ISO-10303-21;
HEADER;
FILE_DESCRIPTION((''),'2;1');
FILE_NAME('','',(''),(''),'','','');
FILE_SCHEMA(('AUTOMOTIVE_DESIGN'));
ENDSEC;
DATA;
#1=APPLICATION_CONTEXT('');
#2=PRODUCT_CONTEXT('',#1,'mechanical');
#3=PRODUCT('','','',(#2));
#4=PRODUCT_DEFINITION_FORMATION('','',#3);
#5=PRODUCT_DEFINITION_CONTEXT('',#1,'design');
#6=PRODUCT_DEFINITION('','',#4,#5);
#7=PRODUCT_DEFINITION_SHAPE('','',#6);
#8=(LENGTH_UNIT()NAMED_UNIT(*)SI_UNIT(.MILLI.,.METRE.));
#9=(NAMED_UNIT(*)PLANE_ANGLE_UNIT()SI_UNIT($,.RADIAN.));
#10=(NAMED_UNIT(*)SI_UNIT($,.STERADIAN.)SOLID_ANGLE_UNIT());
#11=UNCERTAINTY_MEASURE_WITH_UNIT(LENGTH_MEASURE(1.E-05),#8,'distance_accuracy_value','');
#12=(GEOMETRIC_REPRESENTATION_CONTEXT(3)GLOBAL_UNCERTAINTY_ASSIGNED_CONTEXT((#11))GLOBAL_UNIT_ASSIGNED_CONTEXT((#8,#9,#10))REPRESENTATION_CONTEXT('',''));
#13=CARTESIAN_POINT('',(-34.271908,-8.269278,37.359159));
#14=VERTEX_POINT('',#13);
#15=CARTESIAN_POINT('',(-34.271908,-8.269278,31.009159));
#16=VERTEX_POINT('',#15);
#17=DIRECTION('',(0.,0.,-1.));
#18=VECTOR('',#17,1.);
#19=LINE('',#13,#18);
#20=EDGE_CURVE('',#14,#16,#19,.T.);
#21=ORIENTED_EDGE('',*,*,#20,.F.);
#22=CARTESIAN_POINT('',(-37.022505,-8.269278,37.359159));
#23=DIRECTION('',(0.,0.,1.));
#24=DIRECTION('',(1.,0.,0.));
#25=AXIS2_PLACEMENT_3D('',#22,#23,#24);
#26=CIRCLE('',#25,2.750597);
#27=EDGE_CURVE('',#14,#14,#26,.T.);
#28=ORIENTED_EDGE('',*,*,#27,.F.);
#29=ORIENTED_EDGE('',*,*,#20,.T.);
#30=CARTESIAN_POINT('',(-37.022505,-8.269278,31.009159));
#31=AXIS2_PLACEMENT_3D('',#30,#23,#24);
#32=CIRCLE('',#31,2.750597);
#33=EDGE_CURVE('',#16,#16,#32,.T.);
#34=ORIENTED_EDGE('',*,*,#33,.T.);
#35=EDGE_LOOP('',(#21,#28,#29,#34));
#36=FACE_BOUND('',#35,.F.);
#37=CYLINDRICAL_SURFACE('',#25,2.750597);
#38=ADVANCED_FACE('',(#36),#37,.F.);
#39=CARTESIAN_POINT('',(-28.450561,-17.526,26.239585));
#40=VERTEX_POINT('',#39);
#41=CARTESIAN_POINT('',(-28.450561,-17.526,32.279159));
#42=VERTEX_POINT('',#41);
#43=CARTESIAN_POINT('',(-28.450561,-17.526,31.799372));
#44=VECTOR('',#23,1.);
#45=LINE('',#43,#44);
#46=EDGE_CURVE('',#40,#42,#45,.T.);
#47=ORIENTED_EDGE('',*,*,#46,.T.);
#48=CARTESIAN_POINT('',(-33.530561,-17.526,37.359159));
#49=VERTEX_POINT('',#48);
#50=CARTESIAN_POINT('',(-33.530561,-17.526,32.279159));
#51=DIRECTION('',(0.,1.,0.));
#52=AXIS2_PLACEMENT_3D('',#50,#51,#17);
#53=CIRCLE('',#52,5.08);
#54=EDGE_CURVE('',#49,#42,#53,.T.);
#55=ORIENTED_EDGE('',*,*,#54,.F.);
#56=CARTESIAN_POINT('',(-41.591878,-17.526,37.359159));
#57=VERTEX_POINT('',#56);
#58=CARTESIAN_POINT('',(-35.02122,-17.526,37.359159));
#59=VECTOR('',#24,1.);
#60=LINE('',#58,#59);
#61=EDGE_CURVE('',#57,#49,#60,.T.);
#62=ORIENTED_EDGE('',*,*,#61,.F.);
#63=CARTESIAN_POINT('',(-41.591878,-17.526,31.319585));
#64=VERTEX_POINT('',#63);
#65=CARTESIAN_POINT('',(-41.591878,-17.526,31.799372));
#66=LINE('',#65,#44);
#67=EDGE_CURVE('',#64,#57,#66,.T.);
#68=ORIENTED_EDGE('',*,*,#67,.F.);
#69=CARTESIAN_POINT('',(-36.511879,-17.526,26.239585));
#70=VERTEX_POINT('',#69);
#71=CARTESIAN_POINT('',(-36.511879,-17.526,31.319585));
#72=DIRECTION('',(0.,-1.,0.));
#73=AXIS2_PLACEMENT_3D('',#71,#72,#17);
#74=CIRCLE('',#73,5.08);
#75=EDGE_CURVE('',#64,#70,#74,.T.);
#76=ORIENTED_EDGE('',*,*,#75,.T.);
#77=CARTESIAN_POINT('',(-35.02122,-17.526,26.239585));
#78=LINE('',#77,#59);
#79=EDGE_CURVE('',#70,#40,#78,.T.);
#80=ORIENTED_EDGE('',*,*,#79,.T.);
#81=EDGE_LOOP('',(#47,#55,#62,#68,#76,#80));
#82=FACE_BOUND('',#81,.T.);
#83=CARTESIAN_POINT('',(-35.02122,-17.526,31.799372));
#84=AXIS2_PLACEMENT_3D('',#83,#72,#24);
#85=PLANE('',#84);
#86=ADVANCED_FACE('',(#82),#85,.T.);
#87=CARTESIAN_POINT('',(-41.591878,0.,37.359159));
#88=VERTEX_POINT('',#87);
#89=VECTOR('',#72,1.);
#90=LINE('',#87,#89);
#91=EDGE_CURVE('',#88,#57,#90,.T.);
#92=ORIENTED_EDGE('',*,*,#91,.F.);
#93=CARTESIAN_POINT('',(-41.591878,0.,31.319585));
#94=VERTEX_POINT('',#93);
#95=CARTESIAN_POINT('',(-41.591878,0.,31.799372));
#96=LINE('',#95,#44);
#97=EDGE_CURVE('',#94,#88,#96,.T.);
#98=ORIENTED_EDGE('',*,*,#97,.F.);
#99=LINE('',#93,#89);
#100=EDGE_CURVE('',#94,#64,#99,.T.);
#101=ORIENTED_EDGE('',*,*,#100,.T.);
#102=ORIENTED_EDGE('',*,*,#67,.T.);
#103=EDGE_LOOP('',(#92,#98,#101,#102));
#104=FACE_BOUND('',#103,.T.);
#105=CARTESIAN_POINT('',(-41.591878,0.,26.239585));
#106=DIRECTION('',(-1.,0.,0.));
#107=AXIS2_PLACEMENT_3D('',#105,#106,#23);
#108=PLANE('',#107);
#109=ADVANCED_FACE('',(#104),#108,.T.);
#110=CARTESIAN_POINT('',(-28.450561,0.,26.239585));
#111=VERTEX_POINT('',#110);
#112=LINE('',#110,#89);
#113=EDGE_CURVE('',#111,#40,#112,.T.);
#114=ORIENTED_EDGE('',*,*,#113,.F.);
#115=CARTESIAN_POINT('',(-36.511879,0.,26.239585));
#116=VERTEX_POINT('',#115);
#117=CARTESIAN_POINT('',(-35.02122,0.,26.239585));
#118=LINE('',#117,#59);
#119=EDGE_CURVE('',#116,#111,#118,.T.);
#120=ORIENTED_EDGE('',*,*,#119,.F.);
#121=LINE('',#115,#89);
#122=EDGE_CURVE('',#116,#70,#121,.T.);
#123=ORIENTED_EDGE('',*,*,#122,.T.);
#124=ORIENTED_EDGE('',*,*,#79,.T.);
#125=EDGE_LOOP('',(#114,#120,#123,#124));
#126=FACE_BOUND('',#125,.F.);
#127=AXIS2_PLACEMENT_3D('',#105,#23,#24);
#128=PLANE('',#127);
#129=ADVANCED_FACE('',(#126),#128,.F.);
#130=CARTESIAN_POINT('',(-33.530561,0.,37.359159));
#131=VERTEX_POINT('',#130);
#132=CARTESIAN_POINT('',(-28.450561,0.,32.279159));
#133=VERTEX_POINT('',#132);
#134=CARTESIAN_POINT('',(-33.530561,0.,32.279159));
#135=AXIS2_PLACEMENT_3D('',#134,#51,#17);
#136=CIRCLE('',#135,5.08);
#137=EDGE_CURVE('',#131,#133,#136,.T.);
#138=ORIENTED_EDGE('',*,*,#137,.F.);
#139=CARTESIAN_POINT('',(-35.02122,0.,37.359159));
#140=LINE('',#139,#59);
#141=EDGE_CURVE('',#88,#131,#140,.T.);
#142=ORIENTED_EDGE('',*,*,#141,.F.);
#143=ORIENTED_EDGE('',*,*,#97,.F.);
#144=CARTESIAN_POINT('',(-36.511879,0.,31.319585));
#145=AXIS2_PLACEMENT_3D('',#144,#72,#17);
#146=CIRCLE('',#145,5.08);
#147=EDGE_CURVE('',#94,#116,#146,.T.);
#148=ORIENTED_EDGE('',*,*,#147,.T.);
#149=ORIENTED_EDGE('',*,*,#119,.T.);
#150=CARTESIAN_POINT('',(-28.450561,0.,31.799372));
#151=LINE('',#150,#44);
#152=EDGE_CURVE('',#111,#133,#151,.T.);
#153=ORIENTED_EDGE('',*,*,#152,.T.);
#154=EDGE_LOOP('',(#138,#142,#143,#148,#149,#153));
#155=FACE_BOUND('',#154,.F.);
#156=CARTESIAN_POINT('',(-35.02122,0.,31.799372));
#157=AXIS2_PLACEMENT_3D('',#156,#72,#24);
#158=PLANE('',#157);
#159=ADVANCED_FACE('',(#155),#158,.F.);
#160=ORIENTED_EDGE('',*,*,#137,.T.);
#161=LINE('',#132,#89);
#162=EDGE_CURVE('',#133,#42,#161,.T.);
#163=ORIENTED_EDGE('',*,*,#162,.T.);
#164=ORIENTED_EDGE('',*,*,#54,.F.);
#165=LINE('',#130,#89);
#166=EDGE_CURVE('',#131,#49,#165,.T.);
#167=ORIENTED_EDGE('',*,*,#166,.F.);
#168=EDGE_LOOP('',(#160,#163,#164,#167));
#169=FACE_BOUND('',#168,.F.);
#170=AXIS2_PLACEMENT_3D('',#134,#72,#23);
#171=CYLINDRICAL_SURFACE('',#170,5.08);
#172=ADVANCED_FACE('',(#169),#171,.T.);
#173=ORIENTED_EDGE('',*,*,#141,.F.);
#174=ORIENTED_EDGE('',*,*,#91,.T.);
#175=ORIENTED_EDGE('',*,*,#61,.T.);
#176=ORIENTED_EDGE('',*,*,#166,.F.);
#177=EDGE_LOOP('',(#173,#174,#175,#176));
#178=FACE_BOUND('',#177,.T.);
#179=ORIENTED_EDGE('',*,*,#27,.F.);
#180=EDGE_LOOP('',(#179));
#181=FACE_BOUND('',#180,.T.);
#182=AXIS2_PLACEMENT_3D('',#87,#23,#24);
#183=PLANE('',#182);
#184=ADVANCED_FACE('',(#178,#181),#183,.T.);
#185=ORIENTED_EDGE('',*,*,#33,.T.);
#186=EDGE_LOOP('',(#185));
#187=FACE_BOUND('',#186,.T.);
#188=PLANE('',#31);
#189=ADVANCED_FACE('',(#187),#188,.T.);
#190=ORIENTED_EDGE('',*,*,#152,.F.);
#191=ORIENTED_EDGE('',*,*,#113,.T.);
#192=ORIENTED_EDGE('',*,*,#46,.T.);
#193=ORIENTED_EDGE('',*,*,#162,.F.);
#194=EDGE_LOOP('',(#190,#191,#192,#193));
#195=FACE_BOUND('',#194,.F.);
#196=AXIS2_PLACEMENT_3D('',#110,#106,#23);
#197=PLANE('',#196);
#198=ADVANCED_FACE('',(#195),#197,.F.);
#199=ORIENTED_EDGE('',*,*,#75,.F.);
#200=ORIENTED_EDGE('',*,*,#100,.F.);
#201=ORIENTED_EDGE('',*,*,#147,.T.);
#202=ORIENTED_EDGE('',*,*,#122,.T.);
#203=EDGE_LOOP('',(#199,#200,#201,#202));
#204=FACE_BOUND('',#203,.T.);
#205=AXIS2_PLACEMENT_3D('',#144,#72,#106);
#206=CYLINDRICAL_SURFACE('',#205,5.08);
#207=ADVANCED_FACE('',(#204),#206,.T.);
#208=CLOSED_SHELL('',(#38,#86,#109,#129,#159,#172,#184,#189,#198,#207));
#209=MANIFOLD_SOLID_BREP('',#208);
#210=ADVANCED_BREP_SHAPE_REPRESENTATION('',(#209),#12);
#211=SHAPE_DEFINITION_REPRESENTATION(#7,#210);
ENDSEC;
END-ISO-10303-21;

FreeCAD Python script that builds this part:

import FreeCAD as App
import Part
import Sketcher
from FreeCAD import Vector
Q = App.Units.Quantity


def edges_at(feature, points):
    """Names of the edges that pass closest to the given points."""
    edges = feature.Shape.Edges
    near = lambda p: min(range(len(edges)), key=lambda i: edges[i].distToShape(Part.Vertex(*p))[0])
    return sorted({f"Edge{near(p) + 1}" for p in points})

doc = App.newDocument("Part")
params = doc.addObject("Spreadsheet::Sheet", "Params")
for row, (alias, value) in enumerate([
    ("pad1_length", "0.69 in"),
    ("pocket1_length", "0.25 in"),
    ("fillet_radius", "0.2 in"),
], start=1):
    params.set(f"A{row}", alias)
    params.set(f"B{row}", "=" + value)
    params.setAlias(f"B{row}", alias)

body = doc.addObject("PartDesign::Body", "Body")

# Sketch on XZ plane
sketch1 = body.newObject("Sketcher::SketchObject", "Sketch")
sketch1.AttachmentSupport = (doc.getObject("XZ_Plane"), [""])
sketch1.MapMode = "FlatFace"
sketch1.addGeometry(Part.LineSegment(Vector(-41.591878, 37.359159, 0), Vector(-41.591878, 26.239585, 0)), False)
sketch1.addGeometry(Part.LineSegment(Vector(-41.591878, 26.239585, 0), Vector(-28.450561, 26.239585, 0)), False)
sketch1.addGeometry(Part.LineSegment(Vector(-28.450561, 26.239585, 0), Vector(-28.450561, 37.359159, 0)), False)
sketch1.addGeometry(Part.LineSegment(Vector(-28.450561, 37.359159, 0), Vector(-41.591878, 37.359159, 0)), False)
sketch1.addConstraint(Sketcher.Constraint("Coincident", 0, 2, 1, 1))
sketch1.addConstraint(Sketcher.Constraint("Coincident", 1, 2, 2, 1))
sketch1.addConstraint(Sketcher.Constraint("Coincident", 2, 2, 3, 1))
sketch1.addConstraint(Sketcher.Constraint("Coincident", 3, 2, 0, 1))
sketch1.addConstraint(Sketcher.Constraint("Vertical", 0))
sketch1.addConstraint(Sketcher.Constraint("Horizontal", 1))
sketch1.addConstraint(Sketcher.Constraint("Vertical", 2))
sketch1.addConstraint(Sketcher.Constraint("Horizontal", 3))
sketch1.addConstraint(Sketcher.Constraint("DistanceX", 1, 1, 1, 2, Q("13.141317 mm")))
sketch1.addConstraint(Sketcher.Constraint("DistanceY", 0, 2, 0, 1, Q("11.119574 mm")))
sketch1.addConstraint(Sketcher.Constraint("DistanceX", 0, 2, -1, 1, Q("41.591878 mm")))
sketch1.addConstraint(Sketcher.Constraint("DistanceY", -1, 1, 2, 2, Q("37.359159 mm")))
pad1 = body.newObject("PartDesign::Pad", "Pad")
pad1.Profile = sketch1
pad1.setExpression("Length", "Params.pad1_length")

# Sketch on XY plane
sketch2 = body.newObject("Sketcher::SketchObject", "Sketch001")
sketch2.AttachmentSupport = (doc.getObject("XY_Plane"), [""])
sketch2.MapMode = "FlatFace"
sketch2.AttachmentOffset = App.Placement(Vector(0, 0, 37.359159), App.Rotation())
sketch2.addGeometry(Part.Circle(Vector(-37.022505, -8.269278, 0), Vector(0, 0, 1), 2.750597), False)
sketch2.addConstraint(Sketcher.Constraint("Diameter", 0, Q("5.501194 mm")))
sketch2.addConstraint(Sketcher.Constraint("DistanceX", 0, 3, -1, 1, Q("37.022505 mm")))
sketch2.addConstraint(Sketcher.Constraint("DistanceY", 0, 3, -1, 1, Q("8.269278 mm")))
pocket1 = body.newObject("PartDesign::Pocket", "Pocket")
pocket1.Profile = sketch2
pocket1.setExpression("Length", "Params.pocket1_length")
doc.recompute()

fillet = body.newObject("PartDesign::Fillet", "Fillet")
fillet.Base = (pocket1, edges_at(pocket1, [(-28.451, -8.763, 37.359), (-41.592, -8.763, 26.24)]))
fillet.setExpression("Radius", "Params.fillet_radius")

doc.recompute()
